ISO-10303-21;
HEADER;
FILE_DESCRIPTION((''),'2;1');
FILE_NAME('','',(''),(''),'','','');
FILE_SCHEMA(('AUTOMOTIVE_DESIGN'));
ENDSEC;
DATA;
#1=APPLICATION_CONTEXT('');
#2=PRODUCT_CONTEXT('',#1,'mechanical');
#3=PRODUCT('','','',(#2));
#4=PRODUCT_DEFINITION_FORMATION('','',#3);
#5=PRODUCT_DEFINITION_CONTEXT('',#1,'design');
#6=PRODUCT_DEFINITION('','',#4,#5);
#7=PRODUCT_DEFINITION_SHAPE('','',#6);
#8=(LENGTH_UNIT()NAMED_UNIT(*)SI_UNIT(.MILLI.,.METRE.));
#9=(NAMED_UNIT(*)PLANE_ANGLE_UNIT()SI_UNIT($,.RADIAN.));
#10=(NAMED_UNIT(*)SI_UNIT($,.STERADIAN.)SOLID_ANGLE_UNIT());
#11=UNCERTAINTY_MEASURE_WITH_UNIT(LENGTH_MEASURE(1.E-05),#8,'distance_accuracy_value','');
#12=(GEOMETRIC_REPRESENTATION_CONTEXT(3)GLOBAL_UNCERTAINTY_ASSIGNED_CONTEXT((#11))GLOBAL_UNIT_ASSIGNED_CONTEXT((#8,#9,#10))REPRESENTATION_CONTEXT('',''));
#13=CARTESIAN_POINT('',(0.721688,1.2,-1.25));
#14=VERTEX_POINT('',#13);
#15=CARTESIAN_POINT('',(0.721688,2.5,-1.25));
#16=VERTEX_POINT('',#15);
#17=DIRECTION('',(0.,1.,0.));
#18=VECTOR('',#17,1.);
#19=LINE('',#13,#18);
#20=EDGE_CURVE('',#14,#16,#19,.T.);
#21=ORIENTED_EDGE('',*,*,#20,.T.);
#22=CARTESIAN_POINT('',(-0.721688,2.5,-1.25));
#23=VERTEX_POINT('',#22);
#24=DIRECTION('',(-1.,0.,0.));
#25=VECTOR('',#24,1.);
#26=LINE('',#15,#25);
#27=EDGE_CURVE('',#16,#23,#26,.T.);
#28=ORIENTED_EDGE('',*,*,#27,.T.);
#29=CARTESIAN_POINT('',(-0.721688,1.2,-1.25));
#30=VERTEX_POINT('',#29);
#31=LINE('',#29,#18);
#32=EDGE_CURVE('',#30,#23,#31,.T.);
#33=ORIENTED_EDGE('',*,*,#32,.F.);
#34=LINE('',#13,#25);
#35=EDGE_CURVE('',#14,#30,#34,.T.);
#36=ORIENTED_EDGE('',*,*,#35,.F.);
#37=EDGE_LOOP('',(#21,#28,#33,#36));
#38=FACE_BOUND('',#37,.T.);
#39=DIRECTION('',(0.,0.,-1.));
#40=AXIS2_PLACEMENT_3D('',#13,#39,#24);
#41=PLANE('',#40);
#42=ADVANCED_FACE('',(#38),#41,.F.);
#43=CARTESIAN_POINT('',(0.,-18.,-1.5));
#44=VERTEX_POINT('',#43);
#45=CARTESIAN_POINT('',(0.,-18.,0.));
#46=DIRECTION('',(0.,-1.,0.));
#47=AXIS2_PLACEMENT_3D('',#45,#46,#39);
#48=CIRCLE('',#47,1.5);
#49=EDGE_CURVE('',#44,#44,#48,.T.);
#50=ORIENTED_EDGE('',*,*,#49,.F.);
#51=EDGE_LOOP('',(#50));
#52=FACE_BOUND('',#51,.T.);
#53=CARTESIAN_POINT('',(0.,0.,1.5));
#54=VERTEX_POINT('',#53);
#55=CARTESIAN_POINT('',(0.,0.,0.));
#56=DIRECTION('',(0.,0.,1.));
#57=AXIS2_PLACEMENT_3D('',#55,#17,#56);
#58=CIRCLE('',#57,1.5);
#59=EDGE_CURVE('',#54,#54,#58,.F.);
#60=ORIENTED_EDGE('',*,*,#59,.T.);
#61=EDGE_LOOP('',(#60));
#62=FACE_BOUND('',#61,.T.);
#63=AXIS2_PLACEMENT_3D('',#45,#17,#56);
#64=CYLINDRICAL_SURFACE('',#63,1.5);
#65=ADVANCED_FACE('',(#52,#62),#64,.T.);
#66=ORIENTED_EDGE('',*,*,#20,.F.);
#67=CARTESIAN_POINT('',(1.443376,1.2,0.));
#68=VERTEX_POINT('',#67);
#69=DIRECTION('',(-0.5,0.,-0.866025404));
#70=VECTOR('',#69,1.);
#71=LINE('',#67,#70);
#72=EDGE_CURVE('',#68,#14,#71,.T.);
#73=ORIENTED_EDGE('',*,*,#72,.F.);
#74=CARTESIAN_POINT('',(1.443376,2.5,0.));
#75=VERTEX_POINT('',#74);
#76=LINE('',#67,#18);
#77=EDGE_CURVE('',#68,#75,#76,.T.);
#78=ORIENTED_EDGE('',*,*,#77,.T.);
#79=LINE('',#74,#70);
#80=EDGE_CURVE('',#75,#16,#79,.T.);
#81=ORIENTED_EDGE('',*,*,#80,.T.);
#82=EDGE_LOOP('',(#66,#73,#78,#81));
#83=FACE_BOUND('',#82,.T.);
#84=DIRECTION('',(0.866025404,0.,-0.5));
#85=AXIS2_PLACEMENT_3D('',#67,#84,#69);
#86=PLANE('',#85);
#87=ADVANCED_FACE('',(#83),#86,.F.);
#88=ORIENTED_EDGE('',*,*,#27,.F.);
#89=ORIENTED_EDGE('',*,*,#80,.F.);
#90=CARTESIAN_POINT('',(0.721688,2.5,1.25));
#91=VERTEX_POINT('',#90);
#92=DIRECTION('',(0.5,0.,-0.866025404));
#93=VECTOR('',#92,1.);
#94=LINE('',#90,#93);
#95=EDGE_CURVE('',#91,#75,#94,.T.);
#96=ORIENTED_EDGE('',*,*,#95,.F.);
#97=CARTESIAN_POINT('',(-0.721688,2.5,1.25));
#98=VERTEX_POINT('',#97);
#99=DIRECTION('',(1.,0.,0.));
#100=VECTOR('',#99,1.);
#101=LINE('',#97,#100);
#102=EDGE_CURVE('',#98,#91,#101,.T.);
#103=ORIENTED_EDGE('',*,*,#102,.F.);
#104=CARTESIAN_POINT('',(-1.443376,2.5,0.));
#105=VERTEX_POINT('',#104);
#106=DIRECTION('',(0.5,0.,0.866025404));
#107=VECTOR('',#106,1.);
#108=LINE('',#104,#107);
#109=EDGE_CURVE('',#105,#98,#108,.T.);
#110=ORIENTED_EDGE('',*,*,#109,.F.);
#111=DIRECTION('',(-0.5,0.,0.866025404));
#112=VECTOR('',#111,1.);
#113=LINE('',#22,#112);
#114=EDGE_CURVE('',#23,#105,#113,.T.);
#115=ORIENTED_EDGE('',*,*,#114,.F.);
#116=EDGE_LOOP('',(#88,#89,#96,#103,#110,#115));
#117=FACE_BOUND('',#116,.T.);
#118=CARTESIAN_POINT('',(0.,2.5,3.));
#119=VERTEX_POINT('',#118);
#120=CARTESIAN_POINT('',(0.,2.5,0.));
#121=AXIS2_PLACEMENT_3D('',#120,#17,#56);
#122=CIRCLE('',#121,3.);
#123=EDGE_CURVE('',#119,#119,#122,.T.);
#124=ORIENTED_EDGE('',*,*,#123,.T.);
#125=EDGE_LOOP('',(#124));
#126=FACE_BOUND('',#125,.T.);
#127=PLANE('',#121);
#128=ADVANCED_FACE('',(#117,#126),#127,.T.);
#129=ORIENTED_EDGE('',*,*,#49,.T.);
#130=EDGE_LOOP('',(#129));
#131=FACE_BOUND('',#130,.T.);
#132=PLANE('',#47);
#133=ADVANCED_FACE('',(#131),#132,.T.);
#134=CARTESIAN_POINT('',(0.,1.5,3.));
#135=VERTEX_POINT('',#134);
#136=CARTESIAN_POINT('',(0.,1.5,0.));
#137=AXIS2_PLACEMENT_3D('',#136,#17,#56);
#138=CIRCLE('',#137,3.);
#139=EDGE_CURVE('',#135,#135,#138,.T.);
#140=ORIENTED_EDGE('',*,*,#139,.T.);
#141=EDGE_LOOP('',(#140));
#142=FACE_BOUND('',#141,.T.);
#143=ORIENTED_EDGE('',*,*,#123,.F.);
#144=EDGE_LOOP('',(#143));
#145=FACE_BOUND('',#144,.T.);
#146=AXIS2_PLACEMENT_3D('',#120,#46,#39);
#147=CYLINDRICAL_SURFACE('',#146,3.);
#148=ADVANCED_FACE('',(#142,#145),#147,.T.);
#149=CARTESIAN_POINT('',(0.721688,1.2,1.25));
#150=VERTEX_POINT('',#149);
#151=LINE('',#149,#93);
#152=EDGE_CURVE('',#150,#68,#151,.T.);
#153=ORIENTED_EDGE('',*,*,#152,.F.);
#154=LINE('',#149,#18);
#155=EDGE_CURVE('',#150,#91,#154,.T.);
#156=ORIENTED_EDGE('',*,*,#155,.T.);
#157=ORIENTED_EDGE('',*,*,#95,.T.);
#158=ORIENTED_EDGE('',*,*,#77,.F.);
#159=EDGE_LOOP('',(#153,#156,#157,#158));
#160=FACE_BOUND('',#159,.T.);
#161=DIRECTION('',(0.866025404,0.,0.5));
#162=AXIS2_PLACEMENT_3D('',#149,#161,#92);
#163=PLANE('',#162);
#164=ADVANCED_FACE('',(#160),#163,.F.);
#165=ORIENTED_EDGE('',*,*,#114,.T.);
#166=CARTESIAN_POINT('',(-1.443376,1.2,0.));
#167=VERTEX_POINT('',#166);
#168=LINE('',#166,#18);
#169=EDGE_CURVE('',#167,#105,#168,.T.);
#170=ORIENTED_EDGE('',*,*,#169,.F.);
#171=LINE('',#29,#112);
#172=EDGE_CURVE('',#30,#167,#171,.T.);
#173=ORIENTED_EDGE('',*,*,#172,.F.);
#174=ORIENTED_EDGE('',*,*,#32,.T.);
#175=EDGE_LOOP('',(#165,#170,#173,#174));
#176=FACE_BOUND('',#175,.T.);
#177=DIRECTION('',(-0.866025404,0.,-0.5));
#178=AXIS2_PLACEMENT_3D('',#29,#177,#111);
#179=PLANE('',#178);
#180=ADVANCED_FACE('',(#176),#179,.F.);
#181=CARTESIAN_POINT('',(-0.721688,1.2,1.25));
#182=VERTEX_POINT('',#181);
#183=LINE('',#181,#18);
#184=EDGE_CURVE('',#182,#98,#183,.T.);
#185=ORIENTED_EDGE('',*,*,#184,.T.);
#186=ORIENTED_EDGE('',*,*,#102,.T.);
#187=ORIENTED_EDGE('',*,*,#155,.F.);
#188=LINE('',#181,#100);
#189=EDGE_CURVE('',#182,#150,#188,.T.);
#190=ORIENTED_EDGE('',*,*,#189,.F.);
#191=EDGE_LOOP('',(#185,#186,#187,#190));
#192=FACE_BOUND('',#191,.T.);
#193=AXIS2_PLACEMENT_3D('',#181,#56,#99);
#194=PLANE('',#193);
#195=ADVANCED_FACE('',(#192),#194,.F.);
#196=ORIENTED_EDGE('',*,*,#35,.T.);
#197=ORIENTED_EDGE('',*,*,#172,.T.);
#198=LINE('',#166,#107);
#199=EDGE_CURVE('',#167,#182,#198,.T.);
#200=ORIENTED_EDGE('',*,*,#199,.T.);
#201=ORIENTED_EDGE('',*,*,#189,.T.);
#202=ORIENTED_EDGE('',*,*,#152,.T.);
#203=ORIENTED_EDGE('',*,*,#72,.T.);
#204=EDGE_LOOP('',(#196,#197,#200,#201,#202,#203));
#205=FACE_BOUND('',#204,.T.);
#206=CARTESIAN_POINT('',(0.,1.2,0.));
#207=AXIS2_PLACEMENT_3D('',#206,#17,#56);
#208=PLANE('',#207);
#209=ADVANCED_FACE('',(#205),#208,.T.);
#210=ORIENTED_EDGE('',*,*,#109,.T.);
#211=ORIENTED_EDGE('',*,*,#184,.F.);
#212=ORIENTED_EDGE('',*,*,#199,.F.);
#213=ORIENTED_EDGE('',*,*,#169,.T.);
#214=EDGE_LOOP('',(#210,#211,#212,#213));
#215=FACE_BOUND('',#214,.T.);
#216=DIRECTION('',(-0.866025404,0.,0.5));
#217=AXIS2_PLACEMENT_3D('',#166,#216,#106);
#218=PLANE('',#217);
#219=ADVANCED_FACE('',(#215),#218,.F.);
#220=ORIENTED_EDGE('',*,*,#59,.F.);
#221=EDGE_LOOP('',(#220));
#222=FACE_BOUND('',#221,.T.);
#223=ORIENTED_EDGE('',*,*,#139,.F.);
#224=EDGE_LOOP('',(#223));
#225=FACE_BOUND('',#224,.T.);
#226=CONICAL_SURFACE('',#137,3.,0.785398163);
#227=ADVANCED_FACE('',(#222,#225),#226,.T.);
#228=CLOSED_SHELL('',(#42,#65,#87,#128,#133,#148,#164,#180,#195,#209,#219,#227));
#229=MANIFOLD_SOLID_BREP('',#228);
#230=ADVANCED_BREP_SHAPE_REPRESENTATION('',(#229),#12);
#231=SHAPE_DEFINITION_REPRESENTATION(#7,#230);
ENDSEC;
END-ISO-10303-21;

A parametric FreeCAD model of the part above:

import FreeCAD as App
import Part
import Sketcher

V = App.Vector
Q = App.Units.Quantity


def edges_at(feature, points):
    """Names of the edges that pass closest to the given points."""
    edges = feature.Shape.Edges
    near = lambda p: min(range(len(edges)), key=lambda i: edges[i].distToShape(Part.Vertex(*p))[0])
    return sorted({f"Edge{near(p) + 1}" for p in points})

doc = App.newDocument("Part")
params = doc.addObject("Spreadsheet::Sheet", "Params")
for row, (alias, value) in enumerate([
    ("sketch1_diameter", "6 mm"),
    ("pad1_length", "2.5 mm"),
    ("chamfer_size", "1.5 mm"),
    ("pocket1_length", "1.3 mm"),
    ("sketch3_diameter", "3 mm"),
    ("pad2_length", "18 mm"),
], start=1):
    params.set(f"A{row}", alias)
    params.set(f"B{row}", "=" + value)
    params.setAlias(f"B{row}", alias)

body = doc.addObject("PartDesign::Body", "Body")

sketch1 = body.newObject("Sketcher::SketchObject", "Sketch")
sketch1.AttachmentSupport = (doc.getObject("XZ_Plane"), [""])
sketch1.MapMode = "FlatFace"
sketch1.addGeometry(Part.Circle(V(0, 0, 0), V(0, 0, 1), 3), False)
sketch1.addConstraint(Sketcher.Constraint("Coincident", 0, 3, -1, 1))
sketch1.addConstraint(Sketcher.Constraint("Diameter", 0, 6.0))
sketch1.setExpression("Constraints[1]", "Params.sketch1_diameter")
pad1 = body.newObject("PartDesign::Pad", "Pad")
pad1.Profile = sketch1
pad1.setExpression("Length", "Params.pad1_length")
pad1.Reversed = True
doc.recompute()

chamfer = body.newObject("PartDesign::Chamfer", "Chamfer")
chamfer.Base = (pad1, edges_at(pad1, [(-3, 0, 0)]))
chamfer.setExpression("Size", "Params.chamfer_size")

sketch2 = body.newObject("Sketcher::SketchObject", "Sketch001")
sketch2.AttachmentSupport = (doc.getObject("XZ_Plane"), [""])
sketch2.MapMode = "FlatFace"
sketch2.AttachmentOffset = App.Placement(V(0, 0, -2.5), App.Rotation())
sketch2.addGeometry(Part.LineSegment(V(1.4, 0, 0), V(0.7, -1.2, 0)), False)
sketch2.addGeometry(Part.LineSegment(V(0.7, -1.2, 0), V(-0.7, -1.2, 0)), False)
sketch2.addGeometry(Part.LineSegment(V(-0.7, -1.2, 0), V(-1.4, 0, 0)), False)
sketch2.addGeometry(Part.LineSegment(V(-1.4, 0, 0), V(-0.7, 1.2, 0)), False)
sketch2.addGeometry(Part.LineSegment(V(-0.7, 1.2, 0), V(0.7, 1.2, 0)), False)
sketch2.addGeometry(Part.LineSegment(V(0.7, 1.2, 0), V(1.4, 0, 0)), False)
sketch2.addConstraint(Sketcher.Constraint("Coincident", 0, 2, 1, 1))
sketch2.addConstraint(Sketcher.Constraint("Coincident", 1, 2, 2, 1))
sketch2.addConstraint(Sketcher.Constraint("Coincident", 2, 2, 3, 1))
sketch2.addConstraint(Sketcher.Constraint("Coincident", 3, 2, 4, 1))
sketch2.addConstraint(Sketcher.Constraint("Coincident", 4, 2, 5, 1))
sketch2.addConstraint(Sketcher.Constraint("Coincident", 5, 2, 0, 1))
sketch2.addConstraint(Sketcher.Constraint("Horizontal", 1))
sketch2.addConstraint(Sketcher.Constraint("Horizontal", 4))
sketch2.addConstraint(Sketcher.Constraint("Symmetric", 0, 2, 3, 2, -1, 1))
sketch2.addConstraint(Sketcher.Constraint("Symmetric", 2, 2, 5, 2, -1, 1))
sketch2.addConstraint(Sketcher.Constraint("PointOnObject", 2, 2, -1))
sketch2.addConstraint(Sketcher.Constraint("Parallel", 2, 5))
sketch2.addConstraint(Sketcher.Constraint("Vertical", 1, 2, 3, 2))
sketch2.addConstraint(Sketcher.Constraint("Angle", 0, Q("-120 deg")))
sketch2.addConstraint(Sketcher.Constraint("DistanceY", 1, 2, 3, 2, 2.5))
sketch2.addConstraint(Sketcher.Constraint("DistanceX", 1, 2, 1, 1, 1.443376))
pocket1 = body.newObject("PartDesign::Pocket", "Pocket")
pocket1.Profile = sketch2
pocket1.setExpression("Length", "Params.pocket1_length")
pocket1.Reversed = True

sketch3 = body.newObject("Sketcher::SketchObject", "Sketch002")
sketch3.AttachmentSupport = (doc.getObject("XZ_Plane"), [""])
sketch3.MapMode = "FlatFace"
sketch3.addGeometry(Part.Circle(V(0, 0, 0), V(0, 0, 1), 1.5), False)
sketch3.addConstraint(Sketcher.Constraint("Coincident", 0, 3, -1, 1))
sketch3.addConstraint(Sketcher.Constraint("Diameter", 0, 3.0))
sketch3.setExpression("Constraints[1]", "Params.sketch3_diameter")
pad2 = body.newObject("PartDesign::Pad", "Pad001")
pad2.Profile = sketch3
pad2.setExpression("Length", "Params.pad2_length")

doc.recompute()
